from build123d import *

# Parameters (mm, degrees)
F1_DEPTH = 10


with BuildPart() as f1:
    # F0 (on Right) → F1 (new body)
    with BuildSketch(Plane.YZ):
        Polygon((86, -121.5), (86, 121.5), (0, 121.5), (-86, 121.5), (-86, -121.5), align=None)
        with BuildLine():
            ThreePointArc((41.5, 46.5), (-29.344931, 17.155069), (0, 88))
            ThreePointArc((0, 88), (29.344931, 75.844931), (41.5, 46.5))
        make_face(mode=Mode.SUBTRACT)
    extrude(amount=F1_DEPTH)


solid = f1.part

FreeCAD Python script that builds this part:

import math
import FreeCAD as App
import Part
import Sketcher
from FreeCAD import Vector
Q = App.Units.Quantity

doc = App.newDocument("Part")
body = doc.addObject("PartDesign::Body", "Body")

sketch1 = doc.addObject("Sketcher::SketchObject", "Sketch")
body.addObject(sketch1)
sketch1.AttachmentSupport = (doc.YZ_Plane, [""])
sketch1.MapMode = "FlatFace"
sketch1.addGeometry([
    Part.LineSegment(Vector(86, -121.5, 0), Vector(86, 121.5, 0)),
    Part.LineSegment(Vector(86, 121.5, 0), Vector(-86, 121.5, 0)),
    Part.LineSegment(Vector(-86, 121.5, 0), Vector(-86, -121.5, 0)),
    Part.LineSegment(Vector(-86, -121.5, 0), Vector(86, -121.5, 0)),
    Part.ArcOfCircle(Part.Circle(Vector(-0.000001, 46.499999, 0), Vector(0, 0, 1), 41.500001), math.radians(0.000002), math.radians(89.999998)),
    Part.ArcOfCircle(Part.Circle(Vector(0, 46.5, 0), Vector(0, 0, 1), 41.5), math.radians(90), math.radians(360)),
], False)
sketch1.addConstraint([
    Sketcher.Constraint("Coincident", 0, 2, 1, 1),
    Sketcher.Constraint("Coincident", 1, 2, 2, 1),
    Sketcher.Constraint("Coincident", 2, 2, 3, 1),
    Sketcher.Constraint("Coincident", 3, 2, 0, 1),
    Sketcher.Constraint("Tangent", 4, 1, 5, 2),
    Sketcher.Constraint("Coincident", 5, 1, 4, 2),
    Sketcher.Constraint("Vertical", 0),
    Sketcher.Constraint("Horizontal", 1),
    Sketcher.Constraint("Vertical", 2),
    Sketcher.Constraint("Horizontal", 3),
    Sketcher.Constraint("Symmetric", 0, 2, 2, 2, -1, 1),
    Sketcher.Constraint("PointOnObject", 4, 3, -2),
    Sketcher.Constraint("PointOnObject", 5, 1, -2),
    Sketcher.Constraint("Horizontal", 5, 3, 4, 1),
    Sketcher.Constraint("Radius", 4, Q("41.500001 mm")),
    Sketcher.Constraint("DistanceX", 1, 2, 1, 1, Q("172 mm")),
    Sketcher.Constraint("DistanceY", 0, 1, 0, 2, Q("243 mm")),
    Sketcher.Constraint("DistanceY", -1, 1, 5, 1, Q("88 mm")),
])
pad1 = doc.addObject("PartDesign::Pad", "Pad")
body.addObject(pad1)
pad1.Profile = sketch1
pad1.Length = 10

doc.recompute()
